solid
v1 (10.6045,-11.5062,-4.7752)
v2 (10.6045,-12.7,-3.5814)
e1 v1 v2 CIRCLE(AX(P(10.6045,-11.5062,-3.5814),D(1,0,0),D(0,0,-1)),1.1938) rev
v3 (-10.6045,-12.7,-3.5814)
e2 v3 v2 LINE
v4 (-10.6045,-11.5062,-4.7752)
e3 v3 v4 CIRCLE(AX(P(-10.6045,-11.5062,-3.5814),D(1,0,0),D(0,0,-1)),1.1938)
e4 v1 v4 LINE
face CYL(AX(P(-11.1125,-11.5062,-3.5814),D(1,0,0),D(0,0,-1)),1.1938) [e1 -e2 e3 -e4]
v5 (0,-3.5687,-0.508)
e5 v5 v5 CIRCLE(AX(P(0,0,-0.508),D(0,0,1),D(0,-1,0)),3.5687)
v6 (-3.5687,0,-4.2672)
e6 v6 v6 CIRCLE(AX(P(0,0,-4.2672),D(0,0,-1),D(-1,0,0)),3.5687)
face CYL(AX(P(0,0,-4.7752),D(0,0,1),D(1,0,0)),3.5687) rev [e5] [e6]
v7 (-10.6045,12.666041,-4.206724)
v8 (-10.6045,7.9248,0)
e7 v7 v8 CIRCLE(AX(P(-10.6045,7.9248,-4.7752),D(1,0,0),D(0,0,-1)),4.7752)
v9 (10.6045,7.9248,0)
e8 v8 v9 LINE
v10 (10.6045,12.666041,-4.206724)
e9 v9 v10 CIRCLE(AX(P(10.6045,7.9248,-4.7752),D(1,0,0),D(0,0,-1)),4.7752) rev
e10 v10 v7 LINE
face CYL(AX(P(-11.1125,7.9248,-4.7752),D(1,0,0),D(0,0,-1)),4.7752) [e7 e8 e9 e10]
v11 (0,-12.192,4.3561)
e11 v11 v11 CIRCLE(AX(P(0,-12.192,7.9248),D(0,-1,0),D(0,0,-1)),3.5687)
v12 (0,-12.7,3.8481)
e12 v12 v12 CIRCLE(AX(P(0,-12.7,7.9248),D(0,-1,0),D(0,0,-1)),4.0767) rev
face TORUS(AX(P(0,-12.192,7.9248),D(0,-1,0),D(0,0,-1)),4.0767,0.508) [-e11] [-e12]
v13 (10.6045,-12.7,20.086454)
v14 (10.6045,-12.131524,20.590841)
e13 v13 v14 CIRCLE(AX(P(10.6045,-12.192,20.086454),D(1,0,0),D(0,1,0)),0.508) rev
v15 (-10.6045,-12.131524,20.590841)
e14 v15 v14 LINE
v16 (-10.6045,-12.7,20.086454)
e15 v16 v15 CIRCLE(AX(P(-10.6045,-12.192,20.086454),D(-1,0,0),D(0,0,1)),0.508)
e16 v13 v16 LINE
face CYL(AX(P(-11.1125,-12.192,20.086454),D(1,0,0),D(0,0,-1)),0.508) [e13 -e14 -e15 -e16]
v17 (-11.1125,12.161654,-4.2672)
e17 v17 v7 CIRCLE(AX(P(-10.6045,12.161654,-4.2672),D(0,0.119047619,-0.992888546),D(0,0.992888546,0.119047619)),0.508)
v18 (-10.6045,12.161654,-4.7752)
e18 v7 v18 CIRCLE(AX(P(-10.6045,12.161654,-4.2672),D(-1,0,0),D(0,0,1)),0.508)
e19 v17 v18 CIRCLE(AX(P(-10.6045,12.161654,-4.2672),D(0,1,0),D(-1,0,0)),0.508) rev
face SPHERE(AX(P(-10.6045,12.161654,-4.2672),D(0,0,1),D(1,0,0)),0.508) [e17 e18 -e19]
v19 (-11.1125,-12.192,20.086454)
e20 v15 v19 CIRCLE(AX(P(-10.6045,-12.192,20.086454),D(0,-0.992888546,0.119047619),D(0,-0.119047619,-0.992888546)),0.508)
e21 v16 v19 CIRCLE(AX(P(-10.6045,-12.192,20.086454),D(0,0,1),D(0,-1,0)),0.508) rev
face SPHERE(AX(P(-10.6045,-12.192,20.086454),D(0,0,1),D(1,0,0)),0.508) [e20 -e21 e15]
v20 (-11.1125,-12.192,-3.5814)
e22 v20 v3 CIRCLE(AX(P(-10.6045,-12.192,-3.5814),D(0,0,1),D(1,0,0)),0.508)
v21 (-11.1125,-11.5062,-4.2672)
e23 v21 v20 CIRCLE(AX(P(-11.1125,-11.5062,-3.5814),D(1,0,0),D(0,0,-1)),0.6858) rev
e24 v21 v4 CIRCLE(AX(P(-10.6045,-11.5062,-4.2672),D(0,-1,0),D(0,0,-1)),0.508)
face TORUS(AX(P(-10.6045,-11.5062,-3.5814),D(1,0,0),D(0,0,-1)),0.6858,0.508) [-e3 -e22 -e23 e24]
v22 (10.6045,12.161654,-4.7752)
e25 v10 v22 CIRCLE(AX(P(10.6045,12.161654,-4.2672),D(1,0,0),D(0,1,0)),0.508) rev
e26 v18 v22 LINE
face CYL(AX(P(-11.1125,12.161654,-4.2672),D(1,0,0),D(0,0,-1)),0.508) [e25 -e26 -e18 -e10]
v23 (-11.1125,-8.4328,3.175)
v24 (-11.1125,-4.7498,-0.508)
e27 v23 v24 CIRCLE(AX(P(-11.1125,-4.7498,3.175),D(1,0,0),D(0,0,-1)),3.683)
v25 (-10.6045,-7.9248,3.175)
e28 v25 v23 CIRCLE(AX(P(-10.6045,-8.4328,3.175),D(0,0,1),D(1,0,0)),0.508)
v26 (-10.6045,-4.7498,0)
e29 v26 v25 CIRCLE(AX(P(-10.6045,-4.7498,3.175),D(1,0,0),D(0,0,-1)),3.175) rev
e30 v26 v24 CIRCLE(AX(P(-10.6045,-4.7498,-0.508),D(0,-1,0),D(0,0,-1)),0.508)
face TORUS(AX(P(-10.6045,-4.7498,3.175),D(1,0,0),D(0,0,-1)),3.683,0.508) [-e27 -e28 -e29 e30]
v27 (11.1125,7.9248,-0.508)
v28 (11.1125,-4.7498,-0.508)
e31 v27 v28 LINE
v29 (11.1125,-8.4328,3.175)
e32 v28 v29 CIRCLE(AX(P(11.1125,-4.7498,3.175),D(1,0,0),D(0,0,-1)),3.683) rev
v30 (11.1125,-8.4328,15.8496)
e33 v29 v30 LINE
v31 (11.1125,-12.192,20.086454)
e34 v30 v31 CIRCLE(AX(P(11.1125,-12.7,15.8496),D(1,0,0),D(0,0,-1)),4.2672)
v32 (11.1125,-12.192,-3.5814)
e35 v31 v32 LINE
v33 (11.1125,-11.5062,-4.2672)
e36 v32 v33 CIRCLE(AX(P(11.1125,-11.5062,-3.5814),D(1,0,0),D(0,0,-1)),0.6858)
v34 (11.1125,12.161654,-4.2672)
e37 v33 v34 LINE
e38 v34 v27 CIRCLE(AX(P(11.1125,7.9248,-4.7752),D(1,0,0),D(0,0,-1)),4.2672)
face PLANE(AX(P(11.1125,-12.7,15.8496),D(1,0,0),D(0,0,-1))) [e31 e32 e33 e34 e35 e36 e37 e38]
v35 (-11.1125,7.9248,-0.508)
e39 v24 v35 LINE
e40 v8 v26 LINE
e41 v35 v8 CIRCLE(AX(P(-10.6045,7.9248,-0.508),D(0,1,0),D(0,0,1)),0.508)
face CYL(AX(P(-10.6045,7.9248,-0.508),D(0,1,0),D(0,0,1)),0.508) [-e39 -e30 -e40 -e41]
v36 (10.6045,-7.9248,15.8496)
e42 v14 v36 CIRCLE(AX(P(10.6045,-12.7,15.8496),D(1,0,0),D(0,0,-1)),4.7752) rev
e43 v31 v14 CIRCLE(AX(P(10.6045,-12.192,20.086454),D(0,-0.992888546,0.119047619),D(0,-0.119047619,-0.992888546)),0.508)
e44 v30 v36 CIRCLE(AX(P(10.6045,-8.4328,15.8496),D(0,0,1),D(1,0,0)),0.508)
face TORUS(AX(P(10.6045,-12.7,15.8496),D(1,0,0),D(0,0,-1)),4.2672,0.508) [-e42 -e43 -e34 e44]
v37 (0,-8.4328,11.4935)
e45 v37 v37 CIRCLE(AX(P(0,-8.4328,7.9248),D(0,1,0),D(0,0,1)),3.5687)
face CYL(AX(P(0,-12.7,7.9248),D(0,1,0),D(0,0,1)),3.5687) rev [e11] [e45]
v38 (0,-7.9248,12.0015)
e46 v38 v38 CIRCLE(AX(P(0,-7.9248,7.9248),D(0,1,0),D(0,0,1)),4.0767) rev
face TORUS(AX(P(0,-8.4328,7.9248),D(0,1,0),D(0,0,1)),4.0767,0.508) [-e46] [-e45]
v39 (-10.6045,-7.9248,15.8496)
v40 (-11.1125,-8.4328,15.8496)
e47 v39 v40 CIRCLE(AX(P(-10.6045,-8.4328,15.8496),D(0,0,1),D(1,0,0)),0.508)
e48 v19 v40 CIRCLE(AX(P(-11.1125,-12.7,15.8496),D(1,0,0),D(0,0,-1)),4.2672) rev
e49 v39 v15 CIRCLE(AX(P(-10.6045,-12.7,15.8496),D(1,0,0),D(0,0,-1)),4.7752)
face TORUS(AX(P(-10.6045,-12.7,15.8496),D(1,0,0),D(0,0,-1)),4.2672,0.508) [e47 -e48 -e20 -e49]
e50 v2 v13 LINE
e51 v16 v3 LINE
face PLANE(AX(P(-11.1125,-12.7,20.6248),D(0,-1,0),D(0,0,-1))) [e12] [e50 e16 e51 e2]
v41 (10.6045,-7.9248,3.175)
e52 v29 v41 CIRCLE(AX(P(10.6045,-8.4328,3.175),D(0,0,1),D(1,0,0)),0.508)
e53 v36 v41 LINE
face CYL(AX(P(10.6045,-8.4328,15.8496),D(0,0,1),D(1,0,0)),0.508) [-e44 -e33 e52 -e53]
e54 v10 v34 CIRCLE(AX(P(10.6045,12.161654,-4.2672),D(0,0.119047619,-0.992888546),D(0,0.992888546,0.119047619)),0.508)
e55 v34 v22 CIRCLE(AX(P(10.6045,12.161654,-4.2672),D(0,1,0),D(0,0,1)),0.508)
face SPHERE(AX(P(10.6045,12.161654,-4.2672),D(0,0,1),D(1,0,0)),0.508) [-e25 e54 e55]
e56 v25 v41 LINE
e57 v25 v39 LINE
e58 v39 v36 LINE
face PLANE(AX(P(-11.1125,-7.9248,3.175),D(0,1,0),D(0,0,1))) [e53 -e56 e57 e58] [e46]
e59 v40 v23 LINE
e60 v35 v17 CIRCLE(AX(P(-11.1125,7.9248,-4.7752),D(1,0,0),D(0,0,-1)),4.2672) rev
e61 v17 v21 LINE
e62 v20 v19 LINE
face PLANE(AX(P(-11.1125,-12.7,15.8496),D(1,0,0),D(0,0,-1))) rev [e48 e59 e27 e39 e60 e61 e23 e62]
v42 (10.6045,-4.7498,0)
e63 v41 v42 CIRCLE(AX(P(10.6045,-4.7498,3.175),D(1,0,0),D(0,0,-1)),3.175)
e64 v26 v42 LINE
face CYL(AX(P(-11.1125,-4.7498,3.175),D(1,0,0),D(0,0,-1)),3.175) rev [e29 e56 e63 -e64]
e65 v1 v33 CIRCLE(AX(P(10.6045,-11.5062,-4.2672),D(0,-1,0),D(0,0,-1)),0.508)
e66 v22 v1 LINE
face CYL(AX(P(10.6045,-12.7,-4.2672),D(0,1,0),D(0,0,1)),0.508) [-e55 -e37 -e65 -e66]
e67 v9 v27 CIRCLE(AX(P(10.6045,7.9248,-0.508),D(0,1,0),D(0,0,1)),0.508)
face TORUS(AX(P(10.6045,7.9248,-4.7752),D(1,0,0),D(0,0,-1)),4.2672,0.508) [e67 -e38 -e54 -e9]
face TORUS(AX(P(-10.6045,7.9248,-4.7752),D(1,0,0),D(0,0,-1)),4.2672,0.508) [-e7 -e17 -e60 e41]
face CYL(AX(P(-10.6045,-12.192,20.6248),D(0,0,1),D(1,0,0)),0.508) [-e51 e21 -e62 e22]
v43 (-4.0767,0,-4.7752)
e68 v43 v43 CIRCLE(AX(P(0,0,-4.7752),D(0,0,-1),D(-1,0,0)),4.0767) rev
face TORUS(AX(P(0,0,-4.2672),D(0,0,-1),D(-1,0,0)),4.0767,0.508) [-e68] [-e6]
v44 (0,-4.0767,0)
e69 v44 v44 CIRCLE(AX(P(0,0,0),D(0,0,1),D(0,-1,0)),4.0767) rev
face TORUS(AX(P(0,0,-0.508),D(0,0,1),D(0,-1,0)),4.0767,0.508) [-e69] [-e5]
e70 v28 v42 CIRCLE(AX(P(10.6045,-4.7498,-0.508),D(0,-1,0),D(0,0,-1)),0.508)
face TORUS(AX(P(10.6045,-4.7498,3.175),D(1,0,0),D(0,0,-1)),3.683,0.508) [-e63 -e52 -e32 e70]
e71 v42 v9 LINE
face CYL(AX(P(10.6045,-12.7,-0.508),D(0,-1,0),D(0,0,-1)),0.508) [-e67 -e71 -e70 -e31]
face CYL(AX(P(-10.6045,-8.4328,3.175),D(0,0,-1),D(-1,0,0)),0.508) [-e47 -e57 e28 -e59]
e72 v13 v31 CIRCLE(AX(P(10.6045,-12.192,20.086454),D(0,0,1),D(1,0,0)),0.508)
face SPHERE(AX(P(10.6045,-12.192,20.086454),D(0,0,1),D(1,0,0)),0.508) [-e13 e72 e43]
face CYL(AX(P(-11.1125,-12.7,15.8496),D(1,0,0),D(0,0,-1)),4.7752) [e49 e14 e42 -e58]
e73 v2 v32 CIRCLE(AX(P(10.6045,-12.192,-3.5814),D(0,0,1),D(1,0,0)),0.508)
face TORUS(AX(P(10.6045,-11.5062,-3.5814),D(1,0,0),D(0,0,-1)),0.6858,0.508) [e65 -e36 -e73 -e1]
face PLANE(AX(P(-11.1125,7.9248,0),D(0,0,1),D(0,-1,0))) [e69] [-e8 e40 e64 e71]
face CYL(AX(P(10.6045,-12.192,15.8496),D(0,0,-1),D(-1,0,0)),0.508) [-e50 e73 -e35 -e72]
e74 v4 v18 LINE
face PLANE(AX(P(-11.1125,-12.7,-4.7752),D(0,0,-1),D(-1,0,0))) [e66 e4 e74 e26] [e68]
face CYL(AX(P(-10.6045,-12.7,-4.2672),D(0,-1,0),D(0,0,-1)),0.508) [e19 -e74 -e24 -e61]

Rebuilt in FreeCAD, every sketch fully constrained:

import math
import FreeCAD as App
import Part
import Sketcher
from FreeCAD import Vector
Q = App.Units.Quantity


def edges_at(feature, points):
    """Names of the edges that pass closest to the given points."""
    edges = feature.Shape.Edges
    near = lambda p: min(range(len(edges)), key=lambda i: edges[i].distToShape(Part.Vertex(*p))[0])
    return sorted({f"Edge{near(p) + 1}" for p in points})

doc = App.newDocument("Part")
body = doc.addObject("PartDesign::Body", "Body")

# Sketch on YZ plane
sketch1 = body.newObject("Sketcher::SketchObject", "Sketch")
sketch1.AttachmentSupport = (doc.getObject("YZ_Plane"), [""])
sketch1.MapMode = "FlatFace"
sketch1.AttachmentOffset = App.Placement(Vector(0, 0, 0.4375 * 25.4), App.Rotation())
sketch1.addGeometry([
    Part.LineSegment(Vector(-7.9, 3.2, 0), Vector(-7.9, 15.8, 0)),  # 0
    Part.ArcOfCircle(Part.Circle(Vector(-12.7, 15.8, 0), Vector(0, 0, 1), 4.8), math.radians(0), math.radians(90)),  # 1
    Part.LineSegment(Vector(-12.7, 20.6, 0), Vector(-12.7, -4.8, 0)),  # 2
    Part.LineSegment(Vector(-12.7, -4.8, 0), Vector(12.7, -4.8, 0)),  # 3
    Part.ArcOfCircle(Part.Circle(Vector(7.9, -4.8, 0), Vector(0, 0, 1), 4.8), math.radians(0), math.radians(90)),  # 4
    Part.LineSegment(Vector(7.9, 0, 0), Vector(-4.7, 0, 0)),  # 5
    Part.ArcOfCircle(Part.Circle(Vector(-4.7, 3.2, 0), Vector(0, 0, 1), 3.2), math.radians(-180), math.radians(-90)),  # 6
], False)
sketch1.addConstraint([
    Sketcher.Constraint("Tangent", 0, 2, 1, 1),
    Sketcher.Constraint("Coincident", 1, 2, 2, 1),
    Sketcher.Constraint("Coincident", 2, 2, 3, 1),
    Sketcher.Constraint("Coincident", 3, 2, 4, 1),
    Sketcher.Constraint("Tangent", 4, 2, 5, 1),
    Sketcher.Constraint("Tangent", 5, 2, 6, 2),
    Sketcher.Constraint("Tangent", 6, 1, 0, 1),
    Sketcher.Constraint("Vertical", 0),
    Sketcher.Constraint("Vertical", 2),
    Sketcher.Constraint("Horizontal", 3),
    Sketcher.Constraint("Horizontal", 5),
    Sketcher.Constraint("Equal", 1, 4),
    Sketcher.Constraint("PointOnObject", 4, 2, -1),
    Sketcher.Constraint("Horizontal", 4, 3, 2, 2),
    Sketcher.Constraint("Equal", 5, 0),
    Sketcher.Constraint("Equal", 3, 2),
    Sketcher.Constraint("DistanceX", 3, 1, 3, 2, Q("1 in")),
    Sketcher.Constraint("Radius", 1, Q("0.188 in")),
    Sketcher.Constraint("Radius", 6, Q("0.125 in")),
    Sketcher.Constraint("DistanceX", 1, 3, -1, 1, Q("0.5 in")),
])
pad1 = body.newObject("PartDesign::Pad", "Pad")
pad1.Profile = sketch1
pad1.Length = Q("0.875 in")
pad1.Reversed = True
doc.recompute()

fillet = body.newObject("PartDesign::Fillet", "Fillet")
fillet.Base = (pad1, edges_at(pad1, [(0, -12.7, -4.775)]))
fillet.Radius = Q("0.047 in")

# Sketch on XY plane
sketch2 = body.newObject("Sketcher::SketchObject", "Sketch001")
sketch2.AttachmentSupport = (doc.getObject("XY_Plane"), [""])
sketch2.MapMode = "FlatFace"
sketch2.addGeometry(Part.Circle(Vector(0, 0, 0), Vector(0, 0, 1), 3.6), False)
sketch2.addConstraint([
    Sketcher.Constraint("Coincident", 0, 3, -1, 1),
    Sketcher.Constraint("Diameter", 0, Q("0.281 in")),
])
pocket1 = body.newObject("PartDesign::Pocket", "Pocket")
pocket1.Profile = sketch2
pocket1.Type = "ThroughAll"

# Sketch on XZ plane
sketch3 = body.newObject("Sketcher::SketchObject", "Sketch002")
sketch3.AttachmentSupport = (doc.getObject("XZ_Plane"), [""])
sketch3.MapMode = "FlatFace"
sketch3.AttachmentOffset = App.Placement(Vector(0, 0, 0.312 * 25.4), App.Rotation())
sketch3.addGeometry(Part.Circle(Vector(0, 7.9, 0), Vector(0, 0, 1), 3.6), False)
sketch3.addConstraint([
    Sketcher.Constraint("PointOnObject", 0, 3, -2),
    Sketcher.Constraint("Diameter", 0, Q("0.281 in")),
    Sketcher.Constraint("DistanceY", -1, 1, 0, 3, Q("0.312 in")),
])
pocket2 = body.newObject("PartDesign::Pocket", "Pocket001")
pocket2.Profile = sketch3
pocket2.Type = "ThroughAll"
pocket2.Reversed = True
doc.recompute()

fillet2 = body.newObject("PartDesign::Fillet", "Fillet001")
fillet2.Base = (pocket2, edges_at(pocket2, [
    (0, 12.7, -4.775),
    (0, -12.7, 20.625),
    (-11.113, 11.301, -1.399),
    (-11.113, 1.587, 0),
    (-11.113, -6.995, 0.93),
    (11.113, 0.597, -4.775),
    (-11.113, -7.925, 9.512),
    (11.113, -12.35, -4.426),
    (-11.113, 0.597, -4.775),
    (-11.113, -12.35, -4.426),
    (-3.569, -12.7, 7.925),
    (-11.113, -9.323, 19.226),
    (11.113, -7.925, 9.512),
    (-11.113, -12.7, 8.522),
    (11.113, -6.995, 0.93),
    (11.113, 1.587, 0),
    (11.113, 11.301, -1.399),
    (11.113, -12.7, 8.522),
    (11.113, -9.323, 19.226),
]))
fillet2.Radius = Q("0.02 in")
doc.recompute()

fillet3 = body.newObject("PartDesign::Fillet", "Fillet002")
fillet3.Base = (fillet2, edges_at(fillet2, [(-3.569, 0, -4.775), (-3.569, 0, 0), (-3.569, -7.925, 7.925)]))
fillet3.Radius = Q("0.02 in")

doc.recompute()
